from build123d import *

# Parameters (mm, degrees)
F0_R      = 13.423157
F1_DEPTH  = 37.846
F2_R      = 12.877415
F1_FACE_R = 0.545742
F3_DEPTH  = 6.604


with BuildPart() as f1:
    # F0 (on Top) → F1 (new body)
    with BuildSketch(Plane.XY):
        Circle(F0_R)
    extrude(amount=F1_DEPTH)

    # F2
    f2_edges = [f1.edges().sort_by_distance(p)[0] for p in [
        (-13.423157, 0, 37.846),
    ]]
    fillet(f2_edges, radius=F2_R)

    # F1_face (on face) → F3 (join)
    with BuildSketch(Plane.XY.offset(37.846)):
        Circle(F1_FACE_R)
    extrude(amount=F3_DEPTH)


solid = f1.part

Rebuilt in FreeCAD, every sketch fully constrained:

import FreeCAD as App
import Part
import Sketcher
Q = App.Units.Quantity


def edges_at(feature, points):
    """Names of the edges that pass closest to the given points."""
    edges = feature.Shape.Edges
    near = lambda p: min(range(len(edges)), key=lambda i: edges[i].distToShape(Part.Vertex(*p))[0])
    return sorted({f"Edge{near(p) + 1}" for p in points})

doc = App.newDocument("Part")
body = doc.addObject("PartDesign::Body", "Body")

# Sketch on XY plane
sketch1 = doc.addObject("Sketcher::SketchObject", "Sketch")
body.addObject(sketch1)
sketch1.AttachmentSupport = (doc.XY_Plane, [""])
sketch1.MapMode = "FlatFace"
sketch1.addGeometry(Part.Circle(App.Vector(0, 0, 0), App.Vector(0, 0, 1), 13), False)
sketch1.addConstraint([
    Sketcher.Constraint("Coincident", 0, 3, -1, 1),
    Sketcher.Constraint("Diameter", 0, Q("26.846314 mm")),
])
pad1 = doc.addObject("PartDesign::Pad", "Pad")
body.addObject(pad1)
pad1.Profile = sketch1
pad1.Length = Q("1.49 in")
doc.recompute()

fillet = doc.addObject("PartDesign::Fillet", "Fillet")
body.addObject(fillet)
fillet.Base = (pad1, edges_at(pad1, [(-13.423, 0, 37.846)]))
fillet.Radius = 12.877415

# Sketch on XY plane
sketch2 = doc.addObject("Sketcher::SketchObject", "Sketch001")
body.addObject(sketch2)
sketch2.AttachmentSupport = (doc.XY_Plane, [""])
sketch2.MapMode = "FlatFace"
sketch2.AttachmentOffset = App.Placement(App.Vector(0, 0, 1.49 * 25.4), App.Rotation())
sketch2.addGeometry(Part.Circle(App.Vector(0, 0, 0), App.Vector(0, 0, 1), 0.5), False)
sketch2.addConstraint([
    Sketcher.Constraint("Coincident", 0, 3, -1, 1),
    Sketcher.Constraint("Diameter", 0, Q("1.091484 mm")),
])
pad2 = doc.addObject("PartDesign::Pad", "Pad001")
body.addObject(pad2)
pad2.Profile = sketch2
pad2.Length = Q("0.26 in")

doc.recompute()
